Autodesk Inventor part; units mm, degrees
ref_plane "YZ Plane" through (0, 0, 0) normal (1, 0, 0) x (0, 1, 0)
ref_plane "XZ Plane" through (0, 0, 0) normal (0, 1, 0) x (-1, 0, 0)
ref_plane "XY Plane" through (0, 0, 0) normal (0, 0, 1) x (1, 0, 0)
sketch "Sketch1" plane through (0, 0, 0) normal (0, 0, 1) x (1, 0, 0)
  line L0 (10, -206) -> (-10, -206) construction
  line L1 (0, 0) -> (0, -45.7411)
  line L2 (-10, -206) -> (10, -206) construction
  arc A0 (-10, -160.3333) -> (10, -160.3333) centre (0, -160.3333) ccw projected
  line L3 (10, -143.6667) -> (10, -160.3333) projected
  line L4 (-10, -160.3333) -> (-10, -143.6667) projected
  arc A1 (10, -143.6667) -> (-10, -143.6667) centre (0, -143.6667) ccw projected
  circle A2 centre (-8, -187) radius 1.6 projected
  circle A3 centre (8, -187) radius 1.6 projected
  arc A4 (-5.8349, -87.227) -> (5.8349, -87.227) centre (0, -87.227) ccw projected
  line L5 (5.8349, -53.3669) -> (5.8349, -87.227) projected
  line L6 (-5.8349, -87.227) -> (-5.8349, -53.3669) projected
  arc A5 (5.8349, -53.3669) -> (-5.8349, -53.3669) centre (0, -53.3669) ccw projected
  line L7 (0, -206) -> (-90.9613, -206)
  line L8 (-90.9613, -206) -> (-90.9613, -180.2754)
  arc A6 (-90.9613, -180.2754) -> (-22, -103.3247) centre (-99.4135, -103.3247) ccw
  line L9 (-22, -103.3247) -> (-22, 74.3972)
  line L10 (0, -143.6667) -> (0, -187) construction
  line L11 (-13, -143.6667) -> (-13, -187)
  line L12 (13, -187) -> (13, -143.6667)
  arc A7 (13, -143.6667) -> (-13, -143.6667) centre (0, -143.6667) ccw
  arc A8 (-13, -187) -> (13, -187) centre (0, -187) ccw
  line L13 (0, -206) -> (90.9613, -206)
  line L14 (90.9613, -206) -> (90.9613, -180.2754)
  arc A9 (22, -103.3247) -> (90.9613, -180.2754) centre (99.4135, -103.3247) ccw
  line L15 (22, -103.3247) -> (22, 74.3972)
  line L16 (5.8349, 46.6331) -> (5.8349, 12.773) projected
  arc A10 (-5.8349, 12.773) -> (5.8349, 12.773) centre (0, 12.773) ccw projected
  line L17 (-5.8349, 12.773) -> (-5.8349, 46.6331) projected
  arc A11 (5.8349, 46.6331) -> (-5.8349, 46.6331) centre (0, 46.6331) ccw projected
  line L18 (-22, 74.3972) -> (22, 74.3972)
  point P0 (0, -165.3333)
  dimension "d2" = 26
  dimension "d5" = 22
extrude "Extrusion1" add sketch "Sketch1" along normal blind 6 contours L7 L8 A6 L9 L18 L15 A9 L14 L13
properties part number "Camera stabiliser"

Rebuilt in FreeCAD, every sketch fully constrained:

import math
import FreeCAD as App
import Part
import Sketcher
Q = App.Units.Quantity

doc = App.newDocument("Part")
params = doc.addObject("Spreadsheet::Sheet", "Params")
for row, (alias, value) in enumerate([
    ("sketch1_radius", "13 mm"),
    ("sketch1_height", "33.86 mm"),
    ("pad1_length", "6 mm"),
], start=1):
    params.set(f"A{row}", alias)
    params.set(f"B{row}", "=" + value)
    params.setAlias(f"B{row}", alias)

body = doc.addObject("PartDesign::Body", "Body")

# Sketch on XY plane
sketch1 = doc.addObject("Sketcher::SketchObject", "Sketch")
body.addObject(sketch1)
sketch1.AttachmentSupport = (doc.XY_Plane, [""])
sketch1.MapMode = "FlatFace"
sketch1.addGeometry(Part.LineSegment(App.Vector(-91, -206, 0), App.Vector(91, -206, 0)), False)
sketch1.addGeometry(Part.LineSegment(App.Vector(91, -206, 0), App.Vector(91, -180, 0)), False)
sketch1.addGeometry(Part.ArcOfCircle(Part.Circle(App.Vector(99, -103, 0), App.Vector(0, 0, 1), 77), math.radians(180), math.radians(264)), False)
sketch1.addGeometry(Part.LineSegment(App.Vector(22, -103, 0), App.Vector(22, 74, 0)), False)
sketch1.addGeometry(Part.LineSegment(App.Vector(22, 74, 0), App.Vector(-22, 74, 0)), False)
sketch1.addGeometry(Part.LineSegment(App.Vector(-22, 74, 0), App.Vector(-22, -103, 0)), False)
sketch1.addGeometry(Part.ArcOfCircle(Part.Circle(App.Vector(-99, -103, 0), App.Vector(0, 0, 1), 77), math.radians(-84), math.radians(0)), False)
sketch1.addGeometry(Part.LineSegment(App.Vector(-91, -180, 0), App.Vector(-91, -206, 0)), False)
sketch1.addGeometry(Part.LineSegment(App.Vector(-13, -187, 0), App.Vector(-13, -144, 0)), False)
sketch1.addGeometry(Part.ArcOfCircle(Part.Circle(App.Vector(0, -144, 0), App.Vector(0, 0, 1), 13), math.radians(0), math.radians(180)), False)
sketch1.addGeometry(Part.LineSegment(App.Vector(13, -144, 0), App.Vector(13, -187, 0)), False)
sketch1.addGeometry(Part.ArcOfCircle(Part.Circle(App.Vector(0, -187, 0), App.Vector(0, 0, 1), 13), math.radians(180), math.radians(360)), False)
sketch1.addGeometry(Part.ArcOfCircle(Part.Circle(App.Vector(0, -87, 0), App.Vector(0, 0, 1), 6), math.radians(180), math.radians(360)), False)
sketch1.addGeometry(Part.LineSegment(App.Vector(-6, -87, 0), App.Vector(-6, -53, 0)), False)
sketch1.addGeometry(Part.ArcOfCircle(Part.Circle(App.Vector(0, -53, 0), App.Vector(0, 0, 1), 6), math.radians(0), math.radians(180)), False)
sketch1.addGeometry(Part.LineSegment(App.Vector(6, -53, 0), App.Vector(6, -87, 0)), False)
sketch1.addGeometry(Part.ArcOfCircle(Part.Circle(App.Vector(0, 47, 0), App.Vector(0, 0, 1), 6), math.radians(0), math.radians(180)), False)
sketch1.addGeometry(Part.LineSegment(App.Vector(6, 47, 0), App.Vector(6, 13, 0)), False)
sketch1.addGeometry(Part.ArcOfCircle(Part.Circle(App.Vector(0, 13, 0), App.Vector(0, 0, 1), 6), math.radians(180), math.radians(360)), False)
sketch1.addGeometry(Part.LineSegment(App.Vector(-6, 13, 0), App.Vector(-6, 47, 0)), False)
sketch1.addConstraint(Sketcher.Constraint("Coincident", 0, 2, 1, 1))
sketch1.addConstraint(Sketcher.Constraint("Coincident", 1, 2, 2, 2))
sketch1.addConstraint(Sketcher.Constraint("Tangent", 2, 1, 3, 1))
sketch1.addConstraint(Sketcher.Constraint("Coincident", 3, 2, 4, 1))
sketch1.addConstraint(Sketcher.Constraint("Coincident", 4, 2, 5, 1))
sketch1.addConstraint(Sketcher.Constraint("Tangent", 5, 2, 6, 2))
sketch1.addConstraint(Sketcher.Constraint("Coincident", 6, 1, 7, 1))
sketch1.addConstraint(Sketcher.Constraint("Coincident", 7, 2, 0, 1))
sketch1.addConstraint(Sketcher.Constraint("Tangent", 8, 2, 9, 2))
sketch1.addConstraint(Sketcher.Constraint("Tangent", 9, 1, 10, 1))
sketch1.addConstraint(Sketcher.Constraint("Tangent", 10, 2, 11, 2))
sketch1.addConstraint(Sketcher.Constraint("Tangent", 11, 1, 8, 1))
sketch1.addConstraint(Sketcher.Constraint("Tangent", 12, 1, 13, 1))
sketch1.addConstraint(Sketcher.Constraint("Tangent", 13, 2, 14, 2))
sketch1.addConstraint(Sketcher.Constraint("Tangent", 14, 1, 15, 1))
sketch1.addConstraint(Sketcher.Constraint("Tangent", 15, 2, 12, 2))
sketch1.addConstraint(Sketcher.Constraint("Tangent", 16, 1, 17, 1))
sketch1.addConstraint(Sketcher.Constraint("Tangent", 17, 2, 18, 2))
sketch1.addConstraint(Sketcher.Constraint("Tangent", 18, 1, 19, 1))
sketch1.addConstraint(Sketcher.Constraint("Tangent", 19, 2, 16, 2))
sketch1.addConstraint(Sketcher.Constraint("Horizontal", 0))
sketch1.addConstraint(Sketcher.Constraint("Vertical", 1))
sketch1.addConstraint(Sketcher.Constraint("Vertical", 3))
sketch1.addConstraint(Sketcher.Constraint("Horizontal", 4))
sketch1.addConstraint(Sketcher.Constraint("Vertical", 5))
sketch1.addConstraint(Sketcher.Constraint("Vertical", 7))
sketch1.addConstraint(Sketcher.Constraint("Vertical", 8))
sketch1.addConstraint(Sketcher.Constraint("Vertical", 10))
sketch1.addConstraint(Sketcher.Constraint("Vertical", 13))
sketch1.addConstraint(Sketcher.Constraint("Vertical", 15))
sketch1.addConstraint(Sketcher.Constraint("Vertical", 17))
sketch1.addConstraint(Sketcher.Constraint("Vertical", 19))
sketch1.addConstraint(Sketcher.Constraint("Equal", 2, 6))
sketch1.addConstraint(Sketcher.Constraint("Equal", 14, 16))
sketch1.addConstraint(Sketcher.Constraint("Symmetric", 2, 3, 6, 3, -2))
sketch1.addConstraint(Sketcher.Constraint("PointOnObject", 9, 3, -2))
sketch1.addConstraint(Sketcher.Constraint("PointOnObject", 12, 3, -2))
sketch1.addConstraint(Sketcher.Constraint("PointOnObject", 16, 3, -2))
sketch1.addConstraint(Sketcher.Constraint("Horizontal", 1, 2, 6, 1))
sketch1.addConstraint(Sketcher.Constraint("Equal", 15, 17))
sketch1.addConstraint(Sketcher.Constraint("Radius", 9, Q("13 mm")))
sketch1.addConstraint(Sketcher.Constraint("DistanceX", -1, 1, 2, 1, Q("22 mm")))
sketch1.addConstraint(Sketcher.Constraint("DistanceY", 11, 3, -1, 1, Q("187 mm")))
sketch1.addConstraint(Sketcher.Constraint("DistanceY", 0, 2, -1, 1, Q("206 mm")))
sketch1.addConstraint(Sketcher.Constraint("Radius", 12, Q("5.835 mm")))
sketch1.addConstraint(Sketcher.Constraint("DistanceY", 14, 3, 16, 3, Q("100 mm")))
sketch1.addConstraint(Sketcher.Constraint("DistanceY", 13, 1, 13, 2, Q("33.86 mm")))
sketch1.addConstraint(Sketcher.Constraint("Radius", 2, Q("77.4135 mm")))
sketch1.addConstraint(Sketcher.Constraint("DistanceY", 3, 1, 3, 2, Q("177.722 mm")))
sketch1.addConstraint(Sketcher.Constraint("DistanceX", 0, 1, 0, 2, Q("181.9226 mm")))
sketch1.addConstraint(Sketcher.Constraint("DistanceY", 1, 1, 1, 2, Q("25.7246 mm")))
sketch1.addConstraint(Sketcher.Constraint("DistanceY", 8, 1, 8, 2, Q("43.3333 mm")))
sketch1.addConstraint(Sketcher.Constraint("DistanceY", 12, 3, -1, 1, Q("87.227 mm")))
sketch1.setExpression("Constraints[40]", "Params.sketch1_radius")
sketch1.setExpression("Constraints[46]", "Params.sketch1_height")
pad1 = doc.addObject("PartDesign::Pad", "Pad")
body.addObject(pad1)
pad1.Profile = sketch1
pad1.setExpression("Length", "Params.pad1_length")

doc.recompute()
